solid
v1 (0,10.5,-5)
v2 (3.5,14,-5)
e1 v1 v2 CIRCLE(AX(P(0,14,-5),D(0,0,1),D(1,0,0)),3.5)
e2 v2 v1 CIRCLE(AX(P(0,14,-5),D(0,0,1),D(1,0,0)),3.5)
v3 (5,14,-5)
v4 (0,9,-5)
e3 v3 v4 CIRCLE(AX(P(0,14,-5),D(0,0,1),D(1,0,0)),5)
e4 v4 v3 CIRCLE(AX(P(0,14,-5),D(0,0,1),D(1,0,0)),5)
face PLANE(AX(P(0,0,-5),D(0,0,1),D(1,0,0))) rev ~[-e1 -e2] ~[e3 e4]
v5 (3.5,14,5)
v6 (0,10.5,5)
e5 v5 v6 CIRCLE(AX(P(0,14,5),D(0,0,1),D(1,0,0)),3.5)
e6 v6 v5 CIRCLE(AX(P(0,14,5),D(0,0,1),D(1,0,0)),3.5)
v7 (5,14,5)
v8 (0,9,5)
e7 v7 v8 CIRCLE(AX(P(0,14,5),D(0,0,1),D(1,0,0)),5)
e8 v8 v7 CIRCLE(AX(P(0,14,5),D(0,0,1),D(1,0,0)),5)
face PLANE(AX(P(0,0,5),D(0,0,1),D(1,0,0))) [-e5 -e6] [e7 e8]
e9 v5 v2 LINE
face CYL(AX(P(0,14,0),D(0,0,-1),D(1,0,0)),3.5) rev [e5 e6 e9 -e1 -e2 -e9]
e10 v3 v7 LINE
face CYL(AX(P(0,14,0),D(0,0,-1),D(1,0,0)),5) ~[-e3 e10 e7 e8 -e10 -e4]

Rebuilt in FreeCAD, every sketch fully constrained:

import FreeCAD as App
import Part
import Sketcher
Q = App.Units.Quantity

doc = App.newDocument("Part")
body = doc.addObject("PartDesign::Body", "Body")

sketch1 = body.newObject("Sketcher::SketchObject", "Sketch")
sketch1.AttachmentSupport = (doc.getObject("XY_Plane"), [""])
sketch1.MapMode = "FlatFace"
sketch1.addGeometry(Part.Circle(App.Vector(0, 14, 0), App.Vector(0, 0, 1), 5), False)
sketch1.addGeometry(Part.Circle(App.Vector(0, 14, 0), App.Vector(0, 0, 1), 3.5), False)
sketch1.addConstraint(Sketcher.Constraint("Coincident", 1, 3, 0, 3))
sketch1.addConstraint(Sketcher.Constraint("PointOnObject", 0, 3, -2))
sketch1.addConstraint(Sketcher.Constraint("Diameter", 0, Q("10 mm")))
sketch1.addConstraint(Sketcher.Constraint("Diameter", 1, Q("7 mm")))
sketch1.addConstraint(Sketcher.Constraint("DistanceY", -1, 1, 0, 3, Q("14 mm")))
pad1 = body.newObject("PartDesign::Pad", "Pad")
pad1.Profile = sketch1
pad1.Length = 10
pad1.Midplane = True

doc.recompute()
